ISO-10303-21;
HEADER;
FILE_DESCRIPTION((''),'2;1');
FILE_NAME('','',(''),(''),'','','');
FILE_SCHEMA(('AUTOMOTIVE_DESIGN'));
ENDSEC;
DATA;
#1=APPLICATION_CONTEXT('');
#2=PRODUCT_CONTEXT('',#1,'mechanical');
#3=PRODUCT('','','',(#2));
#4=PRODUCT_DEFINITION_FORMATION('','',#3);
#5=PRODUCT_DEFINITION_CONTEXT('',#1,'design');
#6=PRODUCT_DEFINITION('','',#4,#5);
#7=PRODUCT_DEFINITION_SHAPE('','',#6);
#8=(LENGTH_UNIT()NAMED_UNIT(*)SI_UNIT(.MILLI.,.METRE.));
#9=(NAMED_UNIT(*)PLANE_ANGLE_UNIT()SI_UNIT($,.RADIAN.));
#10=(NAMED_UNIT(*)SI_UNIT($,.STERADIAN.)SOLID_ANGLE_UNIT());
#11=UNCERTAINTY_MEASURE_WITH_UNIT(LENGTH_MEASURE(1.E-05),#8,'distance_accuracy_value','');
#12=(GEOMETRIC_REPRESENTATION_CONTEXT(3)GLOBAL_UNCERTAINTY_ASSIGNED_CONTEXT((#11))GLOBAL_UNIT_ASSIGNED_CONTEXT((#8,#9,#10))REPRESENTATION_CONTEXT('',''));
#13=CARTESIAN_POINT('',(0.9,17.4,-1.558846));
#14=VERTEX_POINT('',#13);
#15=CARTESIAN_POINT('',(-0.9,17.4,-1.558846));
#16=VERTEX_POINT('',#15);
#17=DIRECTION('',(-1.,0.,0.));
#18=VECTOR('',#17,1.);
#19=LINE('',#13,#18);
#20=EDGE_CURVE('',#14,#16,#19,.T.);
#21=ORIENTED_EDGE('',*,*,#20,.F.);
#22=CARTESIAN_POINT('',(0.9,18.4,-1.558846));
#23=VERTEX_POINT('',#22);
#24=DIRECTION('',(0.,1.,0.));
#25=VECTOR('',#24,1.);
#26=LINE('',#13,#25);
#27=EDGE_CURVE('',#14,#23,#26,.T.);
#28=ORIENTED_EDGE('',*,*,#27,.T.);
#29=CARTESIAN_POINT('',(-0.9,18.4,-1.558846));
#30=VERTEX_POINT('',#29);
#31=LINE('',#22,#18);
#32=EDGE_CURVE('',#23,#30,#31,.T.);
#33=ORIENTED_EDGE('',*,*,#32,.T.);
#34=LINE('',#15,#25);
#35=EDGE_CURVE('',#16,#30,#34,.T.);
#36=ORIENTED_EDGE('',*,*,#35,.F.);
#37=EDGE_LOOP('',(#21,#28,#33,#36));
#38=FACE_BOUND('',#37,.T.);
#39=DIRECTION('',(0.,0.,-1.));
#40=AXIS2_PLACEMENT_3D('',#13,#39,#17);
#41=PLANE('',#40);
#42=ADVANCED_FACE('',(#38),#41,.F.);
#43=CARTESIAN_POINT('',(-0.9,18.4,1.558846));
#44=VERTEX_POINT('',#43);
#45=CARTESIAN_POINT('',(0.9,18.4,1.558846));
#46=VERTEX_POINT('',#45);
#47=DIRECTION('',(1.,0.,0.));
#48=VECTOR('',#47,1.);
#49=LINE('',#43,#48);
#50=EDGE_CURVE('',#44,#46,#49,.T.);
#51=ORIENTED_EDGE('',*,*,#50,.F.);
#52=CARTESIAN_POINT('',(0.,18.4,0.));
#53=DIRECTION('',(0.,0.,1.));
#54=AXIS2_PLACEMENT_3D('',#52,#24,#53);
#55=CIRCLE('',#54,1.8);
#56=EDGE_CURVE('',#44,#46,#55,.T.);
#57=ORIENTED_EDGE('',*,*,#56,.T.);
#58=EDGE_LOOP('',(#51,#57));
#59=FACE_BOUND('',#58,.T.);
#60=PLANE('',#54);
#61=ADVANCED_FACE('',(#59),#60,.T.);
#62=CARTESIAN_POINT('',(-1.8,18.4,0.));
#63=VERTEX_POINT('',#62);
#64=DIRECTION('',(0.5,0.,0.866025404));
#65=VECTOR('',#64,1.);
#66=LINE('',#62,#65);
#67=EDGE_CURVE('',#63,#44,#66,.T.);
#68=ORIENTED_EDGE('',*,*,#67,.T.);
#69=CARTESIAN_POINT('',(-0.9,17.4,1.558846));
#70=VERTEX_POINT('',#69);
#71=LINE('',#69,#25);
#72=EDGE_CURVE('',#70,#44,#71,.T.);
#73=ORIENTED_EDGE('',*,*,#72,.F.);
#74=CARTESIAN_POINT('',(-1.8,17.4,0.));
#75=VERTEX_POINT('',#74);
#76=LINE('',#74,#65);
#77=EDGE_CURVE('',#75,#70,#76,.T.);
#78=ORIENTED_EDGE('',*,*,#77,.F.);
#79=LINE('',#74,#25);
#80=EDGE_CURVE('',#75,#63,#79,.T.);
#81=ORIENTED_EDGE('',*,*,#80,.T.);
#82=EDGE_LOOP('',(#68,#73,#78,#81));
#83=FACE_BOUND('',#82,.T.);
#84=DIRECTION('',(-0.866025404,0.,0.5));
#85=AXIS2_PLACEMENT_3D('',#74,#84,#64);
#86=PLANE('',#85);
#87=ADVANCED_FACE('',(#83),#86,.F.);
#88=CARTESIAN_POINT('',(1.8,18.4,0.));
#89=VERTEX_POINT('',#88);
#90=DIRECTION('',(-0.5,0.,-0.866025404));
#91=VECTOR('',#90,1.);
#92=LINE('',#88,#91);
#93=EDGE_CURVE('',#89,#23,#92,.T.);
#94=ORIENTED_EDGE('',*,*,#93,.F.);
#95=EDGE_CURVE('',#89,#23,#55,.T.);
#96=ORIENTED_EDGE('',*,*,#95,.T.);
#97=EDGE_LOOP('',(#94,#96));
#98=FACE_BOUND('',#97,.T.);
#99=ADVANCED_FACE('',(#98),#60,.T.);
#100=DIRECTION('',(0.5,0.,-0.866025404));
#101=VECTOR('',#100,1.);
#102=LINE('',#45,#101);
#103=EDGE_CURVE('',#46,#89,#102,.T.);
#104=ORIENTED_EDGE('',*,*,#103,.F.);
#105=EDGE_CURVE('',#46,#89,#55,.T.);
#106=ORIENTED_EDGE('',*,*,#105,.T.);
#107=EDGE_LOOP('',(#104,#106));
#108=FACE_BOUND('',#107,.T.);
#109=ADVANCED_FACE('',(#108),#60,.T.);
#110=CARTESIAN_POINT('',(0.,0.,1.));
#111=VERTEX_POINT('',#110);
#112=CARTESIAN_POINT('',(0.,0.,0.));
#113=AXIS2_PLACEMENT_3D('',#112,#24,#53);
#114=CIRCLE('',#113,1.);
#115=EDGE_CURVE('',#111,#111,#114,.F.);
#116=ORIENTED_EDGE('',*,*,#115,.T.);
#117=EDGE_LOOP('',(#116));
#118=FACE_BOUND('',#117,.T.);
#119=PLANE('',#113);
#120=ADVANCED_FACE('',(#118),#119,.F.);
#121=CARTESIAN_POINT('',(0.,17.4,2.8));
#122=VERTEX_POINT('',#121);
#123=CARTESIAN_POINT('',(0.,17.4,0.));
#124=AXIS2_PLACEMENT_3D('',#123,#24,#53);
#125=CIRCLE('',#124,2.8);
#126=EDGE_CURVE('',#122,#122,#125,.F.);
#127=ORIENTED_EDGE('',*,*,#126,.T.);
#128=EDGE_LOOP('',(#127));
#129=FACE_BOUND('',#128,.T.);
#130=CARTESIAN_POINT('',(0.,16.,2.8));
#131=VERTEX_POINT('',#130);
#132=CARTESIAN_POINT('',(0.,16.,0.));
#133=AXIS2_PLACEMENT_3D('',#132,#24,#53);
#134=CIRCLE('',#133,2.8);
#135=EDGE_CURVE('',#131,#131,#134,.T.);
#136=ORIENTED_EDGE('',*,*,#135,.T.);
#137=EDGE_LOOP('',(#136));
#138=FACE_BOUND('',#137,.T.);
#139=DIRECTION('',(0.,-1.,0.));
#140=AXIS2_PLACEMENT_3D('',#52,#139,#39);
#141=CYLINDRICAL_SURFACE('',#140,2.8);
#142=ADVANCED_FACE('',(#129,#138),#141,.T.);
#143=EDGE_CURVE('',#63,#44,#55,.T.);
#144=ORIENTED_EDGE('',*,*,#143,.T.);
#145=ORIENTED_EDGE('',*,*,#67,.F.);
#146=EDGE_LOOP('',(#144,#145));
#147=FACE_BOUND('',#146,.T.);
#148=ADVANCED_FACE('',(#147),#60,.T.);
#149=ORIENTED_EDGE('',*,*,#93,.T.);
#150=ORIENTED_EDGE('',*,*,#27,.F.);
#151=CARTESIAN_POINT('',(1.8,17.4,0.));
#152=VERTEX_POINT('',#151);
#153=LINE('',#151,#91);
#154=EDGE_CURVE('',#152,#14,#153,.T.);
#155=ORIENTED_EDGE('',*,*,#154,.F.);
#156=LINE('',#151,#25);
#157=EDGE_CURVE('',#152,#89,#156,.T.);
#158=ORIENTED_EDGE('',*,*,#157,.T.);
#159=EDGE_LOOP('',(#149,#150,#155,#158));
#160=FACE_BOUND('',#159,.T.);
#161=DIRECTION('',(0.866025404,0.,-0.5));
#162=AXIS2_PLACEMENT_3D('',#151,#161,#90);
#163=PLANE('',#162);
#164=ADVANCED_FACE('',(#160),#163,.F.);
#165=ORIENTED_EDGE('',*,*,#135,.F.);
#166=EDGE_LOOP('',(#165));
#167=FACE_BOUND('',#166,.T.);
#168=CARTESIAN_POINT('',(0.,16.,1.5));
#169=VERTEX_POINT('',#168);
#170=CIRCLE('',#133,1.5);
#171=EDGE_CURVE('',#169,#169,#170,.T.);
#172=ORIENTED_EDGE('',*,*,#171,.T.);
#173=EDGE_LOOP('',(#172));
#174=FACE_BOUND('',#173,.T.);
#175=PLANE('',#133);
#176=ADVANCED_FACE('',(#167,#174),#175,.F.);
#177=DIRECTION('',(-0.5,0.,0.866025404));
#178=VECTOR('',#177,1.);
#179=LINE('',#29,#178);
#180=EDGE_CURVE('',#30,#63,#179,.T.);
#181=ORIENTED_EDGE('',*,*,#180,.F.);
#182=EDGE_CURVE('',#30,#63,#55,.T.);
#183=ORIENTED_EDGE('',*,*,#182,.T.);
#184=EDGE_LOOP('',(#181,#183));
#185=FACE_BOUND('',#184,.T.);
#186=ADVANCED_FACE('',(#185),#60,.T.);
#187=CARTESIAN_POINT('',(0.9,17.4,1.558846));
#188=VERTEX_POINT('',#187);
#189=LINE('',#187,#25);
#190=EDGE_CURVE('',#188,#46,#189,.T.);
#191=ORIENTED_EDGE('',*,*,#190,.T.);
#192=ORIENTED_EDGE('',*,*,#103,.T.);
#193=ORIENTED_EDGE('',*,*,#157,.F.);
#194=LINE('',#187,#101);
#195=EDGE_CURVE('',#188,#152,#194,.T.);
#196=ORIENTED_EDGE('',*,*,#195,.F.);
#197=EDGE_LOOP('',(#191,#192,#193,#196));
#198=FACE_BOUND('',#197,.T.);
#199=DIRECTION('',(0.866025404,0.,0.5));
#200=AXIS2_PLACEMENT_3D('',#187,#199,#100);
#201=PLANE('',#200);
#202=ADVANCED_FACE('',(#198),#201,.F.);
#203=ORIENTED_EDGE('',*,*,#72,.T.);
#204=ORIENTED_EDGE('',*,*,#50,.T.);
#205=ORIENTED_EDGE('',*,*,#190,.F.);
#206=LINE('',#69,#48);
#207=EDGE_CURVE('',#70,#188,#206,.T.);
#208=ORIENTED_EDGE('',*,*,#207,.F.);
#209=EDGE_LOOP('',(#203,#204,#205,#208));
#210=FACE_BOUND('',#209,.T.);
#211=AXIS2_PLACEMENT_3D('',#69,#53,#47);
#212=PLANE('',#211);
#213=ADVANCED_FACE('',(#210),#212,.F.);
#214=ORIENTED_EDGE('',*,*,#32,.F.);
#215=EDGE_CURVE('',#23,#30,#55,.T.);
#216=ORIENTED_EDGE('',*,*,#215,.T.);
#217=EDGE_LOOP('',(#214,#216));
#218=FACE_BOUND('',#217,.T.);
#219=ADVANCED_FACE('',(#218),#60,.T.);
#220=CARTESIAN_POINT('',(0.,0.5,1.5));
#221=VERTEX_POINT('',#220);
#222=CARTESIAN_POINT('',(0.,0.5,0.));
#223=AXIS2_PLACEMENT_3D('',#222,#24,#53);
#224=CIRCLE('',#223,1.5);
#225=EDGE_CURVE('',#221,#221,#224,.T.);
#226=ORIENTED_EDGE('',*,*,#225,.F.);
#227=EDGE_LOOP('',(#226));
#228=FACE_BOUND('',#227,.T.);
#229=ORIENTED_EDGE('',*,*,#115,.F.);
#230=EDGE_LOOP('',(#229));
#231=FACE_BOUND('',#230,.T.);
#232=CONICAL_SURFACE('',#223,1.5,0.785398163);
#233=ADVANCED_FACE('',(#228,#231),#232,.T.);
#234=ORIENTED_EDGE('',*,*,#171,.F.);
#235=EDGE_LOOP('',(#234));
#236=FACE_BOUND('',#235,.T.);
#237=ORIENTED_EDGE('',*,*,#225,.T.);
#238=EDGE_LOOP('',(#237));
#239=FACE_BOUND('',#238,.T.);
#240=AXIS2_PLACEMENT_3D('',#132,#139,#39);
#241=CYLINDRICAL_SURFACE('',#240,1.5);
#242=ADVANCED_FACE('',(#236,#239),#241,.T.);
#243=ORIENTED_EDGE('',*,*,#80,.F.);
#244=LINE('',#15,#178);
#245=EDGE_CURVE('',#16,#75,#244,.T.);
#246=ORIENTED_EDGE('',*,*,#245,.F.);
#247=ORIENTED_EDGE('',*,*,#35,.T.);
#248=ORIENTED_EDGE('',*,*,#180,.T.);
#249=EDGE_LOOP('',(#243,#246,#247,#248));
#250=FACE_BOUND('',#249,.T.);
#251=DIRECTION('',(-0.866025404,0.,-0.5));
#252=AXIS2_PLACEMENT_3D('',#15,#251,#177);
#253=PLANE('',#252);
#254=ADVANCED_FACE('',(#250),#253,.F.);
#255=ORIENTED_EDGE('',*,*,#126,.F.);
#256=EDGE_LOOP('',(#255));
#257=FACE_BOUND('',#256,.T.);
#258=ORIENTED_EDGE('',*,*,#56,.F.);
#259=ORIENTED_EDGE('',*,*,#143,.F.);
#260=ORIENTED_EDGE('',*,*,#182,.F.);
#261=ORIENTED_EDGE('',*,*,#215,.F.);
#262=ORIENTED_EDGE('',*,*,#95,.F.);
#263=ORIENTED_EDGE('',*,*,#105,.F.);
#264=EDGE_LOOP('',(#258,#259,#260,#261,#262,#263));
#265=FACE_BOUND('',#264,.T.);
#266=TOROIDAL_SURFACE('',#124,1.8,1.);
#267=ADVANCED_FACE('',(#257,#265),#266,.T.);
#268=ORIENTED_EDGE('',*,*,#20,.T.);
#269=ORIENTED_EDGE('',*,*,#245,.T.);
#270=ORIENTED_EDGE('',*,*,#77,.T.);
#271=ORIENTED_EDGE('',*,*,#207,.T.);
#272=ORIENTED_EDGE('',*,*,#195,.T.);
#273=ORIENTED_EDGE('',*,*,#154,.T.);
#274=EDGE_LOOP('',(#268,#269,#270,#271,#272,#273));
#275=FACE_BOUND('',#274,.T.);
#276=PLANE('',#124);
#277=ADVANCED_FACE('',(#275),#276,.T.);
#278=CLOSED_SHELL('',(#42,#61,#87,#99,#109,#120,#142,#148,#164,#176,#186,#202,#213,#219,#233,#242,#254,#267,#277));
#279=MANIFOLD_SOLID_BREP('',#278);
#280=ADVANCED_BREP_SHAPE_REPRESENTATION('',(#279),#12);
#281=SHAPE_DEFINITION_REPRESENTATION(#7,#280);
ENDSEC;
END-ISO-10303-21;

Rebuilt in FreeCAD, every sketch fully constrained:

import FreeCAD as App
import Part
import Sketcher

V = App.Vector
Q = App.Units.Quantity


def edges_at(feature, points):
    """Names of the edges that pass closest to the given points."""
    edges = feature.Shape.Edges
    near = lambda p: min(range(len(edges)), key=lambda i: edges[i].distToShape(Part.Vertex(*p))[0])
    return sorted({f"Edge{near(p) + 1}" for p in points})


def add_polygon(sketch, points):
    """Adds a closed chain of lines whose ends are joined by coincident constraints."""
    first, n = sketch.GeometryCount, len(points)
    for a, b in zip(points, points[1:] + points[:1]):
        sketch.addGeometry(Part.LineSegment(App.Vector(*a, 0), App.Vector(*b, 0)), False)
    for i in range(n):
        sketch.addConstraint(Sketcher.Constraint("Coincident", first + i, 2, first + (i + 1) % n, 1))

doc = App.newDocument("Part")
body = doc.addObject("PartDesign::Body", "Body")

# Sketch on XZ plane
sketch1 = body.newObject("Sketcher::SketchObject", "Sketch")
sketch1.AttachmentSupport = (doc.getObject("XZ_Plane"), [""])
sketch1.MapMode = "FlatFace"
sketch1.addGeometry(Part.Circle(V(0, 0, 0), V(0, 0, 1), 1.5), False)
sketch1.addConstraint([
    Sketcher.Constraint("Coincident", 0, 3, -1, 1),
    Sketcher.Constraint("Diameter", 0, Q("3 mm")),
])
pad1 = body.newObject("PartDesign::Pad", "Pad")
pad1.Profile = sketch1
pad1.Length = 16
pad1.Reversed = True

# Sketch on XZ plane
sketch2 = body.newObject("Sketcher::SketchObject", "Sketch001")
sketch2.AttachmentSupport = (doc.getObject("XZ_Plane"), [""])
sketch2.MapMode = "FlatFace"
sketch2.AttachmentOffset = App.Placement(V(0, 0, -16), App.Rotation())
sketch2.addGeometry(Part.Circle(V(0, 0, 0), V(0, 0, 1), 2.8), False)
sketch2.addConstraint([
    Sketcher.Constraint("Coincident", 0, 3, -1, 1),
    Sketcher.Constraint("Diameter", 0, Q("5.6 mm")),
])
pad2 = body.newObject("PartDesign::Pad", "Pad001")
pad2.Profile = sketch2
pad2.Length = 2.4
pad2.Reversed = True
doc.recompute()

fillet = body.newObject("PartDesign::Fillet", "Fillet")
fillet.Base = (pad2, edges_at(pad2, [(0, 18.4, -2.8)]))
fillet.Radius = 1

# Sketch on XZ plane
sketch3 = body.newObject("Sketcher::SketchObject", "Sketch002")
sketch3.AttachmentSupport = (doc.getObject("XZ_Plane"), [""])
sketch3.MapMode = "FlatFace"
sketch3.AttachmentOffset = App.Placement(V(0, 0, -18.4), App.Rotation())
add_polygon(sketch3, [(1.8, 0), (0.9, -1.6), (-0.9, -1.6), (-1.8, 0), (-0.9, 1.6), (0.9, 1.6)])  # lines 0-5
sketch3.addConstraint([
    Sketcher.Constraint("Horizontal", 1),
    Sketcher.Constraint("Horizontal", 4),
    Sketcher.Constraint("Symmetric", 0, 2, 3, 2, -1, 1),
    Sketcher.Constraint("Symmetric", 2, 2, 5, 2, -1, 1),
    Sketcher.Constraint("PointOnObject", 2, 2, -1),
    Sketcher.Constraint("Parallel", 2, 5),
    Sketcher.Constraint("Vertical", 1, 2, 3, 2),
    Sketcher.Constraint("Angle", 0, Q("-120 deg")),
    Sketcher.Constraint("DistanceX", 1, 2, 1, 1, Q("1.8 mm")),
    Sketcher.Constraint("Distance", 0, Q("1.8 mm")),
])
pocket1 = body.newObject("PartDesign::Pocket", "Pocket")
pocket1.Profile = sketch3
pocket1.Length = 1
pocket1.Reversed = True
doc.recompute()

chamfer = body.newObject("PartDesign::Chamfer", "Chamfer")
chamfer.Base = (pocket1, edges_at(pocket1, [(0, 0, -1.5)]))
chamfer.Size = 0.5

doc.recompute()
